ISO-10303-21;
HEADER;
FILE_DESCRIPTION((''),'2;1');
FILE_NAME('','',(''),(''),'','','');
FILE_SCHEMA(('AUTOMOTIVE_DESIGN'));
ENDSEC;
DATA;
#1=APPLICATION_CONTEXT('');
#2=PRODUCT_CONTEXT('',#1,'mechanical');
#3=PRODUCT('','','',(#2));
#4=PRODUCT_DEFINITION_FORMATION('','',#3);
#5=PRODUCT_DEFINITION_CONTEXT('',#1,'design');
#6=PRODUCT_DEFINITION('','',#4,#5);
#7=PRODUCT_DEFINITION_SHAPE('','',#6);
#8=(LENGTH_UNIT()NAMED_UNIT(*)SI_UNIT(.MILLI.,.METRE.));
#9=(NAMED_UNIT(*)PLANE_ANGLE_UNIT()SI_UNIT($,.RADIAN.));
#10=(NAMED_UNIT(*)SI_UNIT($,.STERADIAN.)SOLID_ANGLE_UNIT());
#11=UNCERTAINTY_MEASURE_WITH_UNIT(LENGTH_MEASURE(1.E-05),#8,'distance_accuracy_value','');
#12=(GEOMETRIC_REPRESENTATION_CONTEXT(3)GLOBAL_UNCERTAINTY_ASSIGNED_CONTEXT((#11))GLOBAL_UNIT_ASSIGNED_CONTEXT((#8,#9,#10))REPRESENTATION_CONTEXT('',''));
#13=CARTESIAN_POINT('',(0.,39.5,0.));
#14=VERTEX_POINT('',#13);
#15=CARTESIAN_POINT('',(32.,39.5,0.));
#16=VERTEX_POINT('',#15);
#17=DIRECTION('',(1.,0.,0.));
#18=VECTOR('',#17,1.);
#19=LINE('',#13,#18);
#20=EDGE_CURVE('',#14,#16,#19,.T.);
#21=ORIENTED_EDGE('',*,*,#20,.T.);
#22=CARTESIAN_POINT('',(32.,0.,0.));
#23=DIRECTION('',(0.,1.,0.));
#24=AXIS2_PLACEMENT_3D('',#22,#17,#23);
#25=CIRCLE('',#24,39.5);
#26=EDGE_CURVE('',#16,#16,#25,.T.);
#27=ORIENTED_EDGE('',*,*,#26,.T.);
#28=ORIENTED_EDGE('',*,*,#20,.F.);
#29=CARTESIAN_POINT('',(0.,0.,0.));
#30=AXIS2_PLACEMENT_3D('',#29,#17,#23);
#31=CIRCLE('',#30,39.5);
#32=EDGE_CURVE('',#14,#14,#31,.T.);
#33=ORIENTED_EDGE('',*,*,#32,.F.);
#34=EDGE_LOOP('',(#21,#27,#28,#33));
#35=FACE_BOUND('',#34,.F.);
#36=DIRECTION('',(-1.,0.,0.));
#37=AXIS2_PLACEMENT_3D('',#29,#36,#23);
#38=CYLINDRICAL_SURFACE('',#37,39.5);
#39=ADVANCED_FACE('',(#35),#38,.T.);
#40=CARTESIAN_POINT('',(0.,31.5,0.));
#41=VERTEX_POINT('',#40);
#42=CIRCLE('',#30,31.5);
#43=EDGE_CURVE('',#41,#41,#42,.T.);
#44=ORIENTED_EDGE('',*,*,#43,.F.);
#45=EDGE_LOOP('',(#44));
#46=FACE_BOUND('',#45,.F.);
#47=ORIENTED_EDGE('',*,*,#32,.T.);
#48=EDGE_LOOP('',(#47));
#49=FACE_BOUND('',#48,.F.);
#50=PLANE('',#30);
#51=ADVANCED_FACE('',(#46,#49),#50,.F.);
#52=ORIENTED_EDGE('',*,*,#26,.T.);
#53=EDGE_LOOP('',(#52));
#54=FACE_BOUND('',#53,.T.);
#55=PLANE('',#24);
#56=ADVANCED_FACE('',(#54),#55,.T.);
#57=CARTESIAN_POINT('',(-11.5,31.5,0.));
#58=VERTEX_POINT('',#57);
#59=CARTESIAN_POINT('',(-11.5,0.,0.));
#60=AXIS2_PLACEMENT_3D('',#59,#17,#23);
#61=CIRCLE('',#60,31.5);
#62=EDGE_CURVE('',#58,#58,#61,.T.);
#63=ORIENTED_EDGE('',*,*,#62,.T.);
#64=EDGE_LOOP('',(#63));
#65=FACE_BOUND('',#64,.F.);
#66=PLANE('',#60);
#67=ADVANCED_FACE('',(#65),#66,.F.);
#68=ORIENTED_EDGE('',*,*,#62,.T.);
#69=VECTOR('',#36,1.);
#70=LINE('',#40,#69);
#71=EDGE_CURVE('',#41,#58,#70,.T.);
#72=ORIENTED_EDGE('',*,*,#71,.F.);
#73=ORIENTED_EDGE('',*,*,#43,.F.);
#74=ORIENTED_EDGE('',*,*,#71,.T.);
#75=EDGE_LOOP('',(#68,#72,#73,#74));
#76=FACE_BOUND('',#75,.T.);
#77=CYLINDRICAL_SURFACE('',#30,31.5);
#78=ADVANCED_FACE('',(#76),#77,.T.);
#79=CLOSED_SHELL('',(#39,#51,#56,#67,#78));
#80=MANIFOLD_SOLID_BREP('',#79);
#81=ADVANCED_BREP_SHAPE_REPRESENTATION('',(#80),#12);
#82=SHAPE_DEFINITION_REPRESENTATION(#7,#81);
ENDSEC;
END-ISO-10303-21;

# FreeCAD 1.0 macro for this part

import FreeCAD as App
import Part
import Sketcher
from FreeCAD import Vector
Q = App.Units.Quantity

doc = App.newDocument("Part")
params = doc.addObject("Spreadsheet::Sheet", "Params")
for row, (alias, value) in enumerate([
    ("sketch1_diameter", "63 mm"),
    ("pad1_length", "11.5 mm"),
    ("sketch2_diameter", "79 mm"),
    ("pad2_length", "32 mm"),
], start=1):
    params.set(f"A{row}", alias)
    params.set(f"B{row}", "=" + value)
    params.setAlias(f"B{row}", alias)

body = doc.addObject("PartDesign::Body", "Body")

# Sketch on YZ plane
sketch1 = body.newObject("Sketcher::SketchObject", "Sketch")
sketch1.AttachmentSupport = (doc.getObject("YZ_Plane"), [""])
sketch1.MapMode = "FlatFace"
sketch1.addGeometry(Part.Circle(Vector(0, 0, 0), Vector(0, 0, 1), 32), False)
sketch1.addConstraint([
    Sketcher.Constraint("Coincident", 0, 3, -1, 1),
    Sketcher.Constraint("Diameter", 0, Q("63 mm")),
])
sketch1.setExpression("Constraints[1]", "Params.sketch1_diameter")
pad1 = body.newObject("PartDesign::Pad", "Pad")
pad1.Profile = sketch1
pad1.setExpression("Length", "Params.pad1_length")
pad1.Reversed = True

# Sketch on YZ plane
sketch2 = body.newObject("Sketcher::SketchObject", "Sketch001")
sketch2.AttachmentSupport = (doc.getObject("YZ_Plane"), [""])
sketch2.MapMode = "FlatFace"
sketch2.addGeometry(Part.Circle(Vector(0, 0, 0), Vector(0, 0, 1), 40), False)
sketch2.addConstraint([
    Sketcher.Constraint("Coincident", 0, 3, -1, 1),
    Sketcher.Constraint("Diameter", 0, Q("79 mm")),
])
sketch2.setExpression("Constraints[1]", "Params.sketch2_diameter")
pad2 = body.newObject("PartDesign::Pad", "Pad001")
pad2.Profile = sketch2
pad2.setExpression("Length", "Params.pad2_length")

doc.recompute()
